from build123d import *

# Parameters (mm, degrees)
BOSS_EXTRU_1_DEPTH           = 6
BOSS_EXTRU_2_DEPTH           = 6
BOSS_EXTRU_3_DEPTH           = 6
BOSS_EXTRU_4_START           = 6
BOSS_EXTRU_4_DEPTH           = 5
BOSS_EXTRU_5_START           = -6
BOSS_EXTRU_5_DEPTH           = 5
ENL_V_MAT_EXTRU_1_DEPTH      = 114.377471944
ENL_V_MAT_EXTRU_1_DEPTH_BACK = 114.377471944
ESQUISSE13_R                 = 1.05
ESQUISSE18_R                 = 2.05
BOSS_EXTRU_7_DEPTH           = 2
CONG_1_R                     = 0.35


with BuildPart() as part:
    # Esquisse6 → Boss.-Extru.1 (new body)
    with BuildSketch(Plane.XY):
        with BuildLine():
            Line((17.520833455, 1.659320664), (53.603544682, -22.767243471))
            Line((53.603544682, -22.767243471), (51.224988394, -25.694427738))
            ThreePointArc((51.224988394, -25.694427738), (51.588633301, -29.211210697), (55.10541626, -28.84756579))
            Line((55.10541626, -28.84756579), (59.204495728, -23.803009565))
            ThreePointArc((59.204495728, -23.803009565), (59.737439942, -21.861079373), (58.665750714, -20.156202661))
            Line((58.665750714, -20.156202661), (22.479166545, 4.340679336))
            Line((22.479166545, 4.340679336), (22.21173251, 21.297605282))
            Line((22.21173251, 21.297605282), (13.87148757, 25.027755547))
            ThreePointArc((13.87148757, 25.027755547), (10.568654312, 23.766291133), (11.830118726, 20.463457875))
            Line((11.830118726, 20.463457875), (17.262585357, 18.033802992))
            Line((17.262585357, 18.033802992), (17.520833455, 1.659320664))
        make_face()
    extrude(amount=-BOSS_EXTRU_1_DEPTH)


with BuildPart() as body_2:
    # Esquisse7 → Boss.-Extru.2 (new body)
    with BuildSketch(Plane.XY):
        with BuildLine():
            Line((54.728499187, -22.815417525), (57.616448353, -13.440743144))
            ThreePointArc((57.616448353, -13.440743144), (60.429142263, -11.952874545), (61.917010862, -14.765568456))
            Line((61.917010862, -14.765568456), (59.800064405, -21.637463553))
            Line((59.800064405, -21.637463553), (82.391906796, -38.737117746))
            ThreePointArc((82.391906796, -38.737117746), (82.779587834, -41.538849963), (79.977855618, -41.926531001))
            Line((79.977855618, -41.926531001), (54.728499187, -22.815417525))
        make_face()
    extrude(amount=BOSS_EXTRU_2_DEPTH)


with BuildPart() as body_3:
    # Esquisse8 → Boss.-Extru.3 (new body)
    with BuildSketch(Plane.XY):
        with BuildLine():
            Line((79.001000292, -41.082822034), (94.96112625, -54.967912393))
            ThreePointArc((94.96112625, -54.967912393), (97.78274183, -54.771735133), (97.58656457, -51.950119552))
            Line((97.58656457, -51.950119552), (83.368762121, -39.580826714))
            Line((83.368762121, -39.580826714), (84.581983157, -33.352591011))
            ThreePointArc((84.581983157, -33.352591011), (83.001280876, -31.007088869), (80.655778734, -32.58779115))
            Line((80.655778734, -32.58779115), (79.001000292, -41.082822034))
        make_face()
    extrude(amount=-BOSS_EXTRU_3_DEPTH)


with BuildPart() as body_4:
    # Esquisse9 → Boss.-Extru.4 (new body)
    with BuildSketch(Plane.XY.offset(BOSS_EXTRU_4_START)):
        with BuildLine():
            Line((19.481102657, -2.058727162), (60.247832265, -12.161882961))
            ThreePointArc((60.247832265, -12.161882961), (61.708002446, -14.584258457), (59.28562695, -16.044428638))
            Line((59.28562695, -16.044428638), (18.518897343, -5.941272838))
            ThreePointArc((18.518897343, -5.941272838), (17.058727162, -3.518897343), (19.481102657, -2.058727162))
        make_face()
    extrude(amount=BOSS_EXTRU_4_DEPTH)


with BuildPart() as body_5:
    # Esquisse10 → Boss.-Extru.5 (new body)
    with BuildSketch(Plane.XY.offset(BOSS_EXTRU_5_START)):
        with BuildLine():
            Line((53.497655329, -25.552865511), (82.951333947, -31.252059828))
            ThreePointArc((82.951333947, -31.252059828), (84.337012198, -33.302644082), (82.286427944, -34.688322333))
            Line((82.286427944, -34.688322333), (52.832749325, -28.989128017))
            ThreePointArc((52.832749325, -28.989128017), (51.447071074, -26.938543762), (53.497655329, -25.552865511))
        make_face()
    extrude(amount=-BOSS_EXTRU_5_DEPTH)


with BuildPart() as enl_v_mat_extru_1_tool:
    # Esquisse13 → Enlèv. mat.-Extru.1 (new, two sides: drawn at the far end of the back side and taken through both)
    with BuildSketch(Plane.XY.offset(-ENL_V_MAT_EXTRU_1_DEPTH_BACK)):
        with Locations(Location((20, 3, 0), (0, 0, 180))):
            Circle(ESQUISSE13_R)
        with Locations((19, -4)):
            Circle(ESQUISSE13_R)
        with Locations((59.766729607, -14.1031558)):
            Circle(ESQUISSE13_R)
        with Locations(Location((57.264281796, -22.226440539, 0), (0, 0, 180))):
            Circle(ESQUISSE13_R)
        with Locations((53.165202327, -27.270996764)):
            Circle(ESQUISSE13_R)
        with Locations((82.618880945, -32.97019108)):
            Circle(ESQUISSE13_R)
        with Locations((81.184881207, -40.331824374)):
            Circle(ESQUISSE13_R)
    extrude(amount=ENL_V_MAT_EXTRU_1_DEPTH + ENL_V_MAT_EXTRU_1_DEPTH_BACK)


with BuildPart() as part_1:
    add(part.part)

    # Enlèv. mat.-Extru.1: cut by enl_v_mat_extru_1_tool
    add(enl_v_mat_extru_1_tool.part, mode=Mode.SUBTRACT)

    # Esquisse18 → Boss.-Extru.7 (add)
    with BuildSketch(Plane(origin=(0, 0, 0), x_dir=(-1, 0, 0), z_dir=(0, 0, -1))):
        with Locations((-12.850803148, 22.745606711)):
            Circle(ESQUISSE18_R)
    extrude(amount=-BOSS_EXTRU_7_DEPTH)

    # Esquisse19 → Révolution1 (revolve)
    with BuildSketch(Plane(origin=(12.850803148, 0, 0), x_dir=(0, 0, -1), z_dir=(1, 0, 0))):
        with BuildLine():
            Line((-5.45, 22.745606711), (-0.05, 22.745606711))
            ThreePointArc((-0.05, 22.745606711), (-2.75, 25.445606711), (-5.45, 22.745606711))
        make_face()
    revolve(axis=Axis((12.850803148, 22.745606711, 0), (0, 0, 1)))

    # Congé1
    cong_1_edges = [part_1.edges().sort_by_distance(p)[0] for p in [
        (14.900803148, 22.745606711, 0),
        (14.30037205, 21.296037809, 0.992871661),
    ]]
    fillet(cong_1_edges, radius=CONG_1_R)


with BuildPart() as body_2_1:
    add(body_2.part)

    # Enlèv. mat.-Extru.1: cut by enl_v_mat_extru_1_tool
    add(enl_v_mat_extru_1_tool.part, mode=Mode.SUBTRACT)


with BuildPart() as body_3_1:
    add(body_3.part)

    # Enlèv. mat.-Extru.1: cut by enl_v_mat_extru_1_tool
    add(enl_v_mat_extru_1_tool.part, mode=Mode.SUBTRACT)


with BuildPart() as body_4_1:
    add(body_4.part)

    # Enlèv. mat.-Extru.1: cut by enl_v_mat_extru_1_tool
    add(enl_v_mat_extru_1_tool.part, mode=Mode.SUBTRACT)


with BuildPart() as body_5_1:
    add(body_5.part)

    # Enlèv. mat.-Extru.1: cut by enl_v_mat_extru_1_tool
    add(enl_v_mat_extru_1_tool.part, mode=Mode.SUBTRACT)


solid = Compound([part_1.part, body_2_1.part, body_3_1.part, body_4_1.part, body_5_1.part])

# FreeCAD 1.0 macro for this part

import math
import FreeCAD as App
import Part
import Sketcher
from FreeCAD import Vector


def edges_at(feature, points):
    """Names of the edges that pass closest to the given points."""
    edges = feature.Shape.Edges
    near = lambda p: min(range(len(edges)), key=lambda i: edges[i].distToShape(Part.Vertex(*p))[0])
    return sorted({f"Edge{near(p) + 1}" for p in points})

doc = App.newDocument("Part")
params = doc.addObject("Spreadsheet::Sheet", "Params")
for row, (alias, value) in enumerate([
    ("sketch1_radius", "2.5 mm"),
    ("sketch1_length", "6.5 mm"),
    ("pad1_length", "6 mm"),
    ("sketch2_radius", "2 mm"),
    ("sketch2_radius2", "2.25 mm"),
    ("pad2_length", "6 mm"),
    ("sketch3_radius", "2 mm"),
    ("pad3_length", "6 mm"),
    ("sketch4_radius", "2 mm"),
    ("sketch4_length", "42 mm"),
    ("pad4_length", "5 mm"),
    ("sketch5_radius", "1.75 mm"),
    ("sketch5_length", "30 mm"),
    ("pad5_length", "5 mm"),
    ("sketch6_diameter", "2.1 mm"),
    ("pad6_length", "114.377472 mm"),
    ("pad6_length2", "114.377472 mm"),
    ("sketch7_diameter", "4.1 mm"),
    ("pad7_length", "2 mm"),
    ("sketch8_radius", "2.7 mm"),
    ("revolution_angle", "360 deg"),
    ("fillet_radius", "0.35 mm"),
], start=1):
    params.set(f"A{row}", alias)
    params.set(f"B{row}", "=" + value)
    params.setAlias(f"B{row}", alias)

body = doc.addObject("PartDesign::Body", "Body")

sketch1 = body.newObject("Sketcher::SketchObject", "Sketch")
sketch1.AttachmentSupport = (doc.getObject("XY_Plane"), [""])
sketch1.MapMode = "FlatFace"
sketch1.addGeometry([
    Part.LineSegment(Vector(17.5, 1.7, 0), Vector(53.6, -22.8, 0)),
    Part.LineSegment(Vector(53.6, -22.8, 0), Vector(51.2, -25.7, 0)),
    Part.ArcOfCircle(Part.Circle(Vector(53.2, -27.3, 0), Vector(0, 0, 1), 2.5), math.radians(141), math.radians(321)),
    Part.LineSegment(Vector(55.1, -28.8, 0), Vector(59.2, -23.8, 0)),
    Part.ArcOfCircle(Part.Circle(Vector(57.3, -22.2, 0), Vector(0, 0, 1), 2.5), math.radians(-39), math.radians(56)),
    Part.LineSegment(Vector(58.7, -20.2, 0), Vector(22.5, 4.3, 0)),
    Part.LineSegment(Vector(22.5, 4.3, 0), Vector(22.2, 21.3, 0)),
    Part.LineSegment(Vector(22.2, 21.3, 0), Vector(13.9, 25, 0)),
    Part.ArcOfCircle(Part.Circle(Vector(12.9, 22.7, 0), Vector(0, 0, 1), 2.5), math.radians(66), math.radians(246)),
    Part.LineSegment(Vector(11.8, 20.5, 0), Vector(17.3, 18, 0)),
    Part.LineSegment(Vector(17.3, 18, 0), Vector(17.5, 1.7, 0)),
], False)
sketch1.addConstraint([
    Sketcher.Constraint("Coincident", 0, 2, 1, 1),
    Sketcher.Constraint("Tangent", 1, 2, 2, 1),
    Sketcher.Constraint("Tangent", 2, 2, 3, 1),
    Sketcher.Constraint("Tangent", 3, 2, 4, 1),
    Sketcher.Constraint("Tangent", 4, 2, 5, 1),
    Sketcher.Constraint("Coincident", 5, 2, 6, 1),
    Sketcher.Constraint("Coincident", 6, 2, 7, 1),
    Sketcher.Constraint("Tangent", 7, 2, 8, 1),
    Sketcher.Constraint("Tangent", 8, 2, 9, 1),
    Sketcher.Constraint("Coincident", 9, 2, 10, 1),
    Sketcher.Constraint("Coincident", 10, 2, 0, 1),
    Sketcher.Constraint("Equal", 2, 4),
    Sketcher.Constraint("Equal", 4, 8),
    Sketcher.Constraint("Parallel", 1, 3),
    Sketcher.Constraint("Parallel", 0, 5),
    Sketcher.Constraint("Parallel", 7, 9),
    Sketcher.Constraint("Parallel", 6, 10),
    Sketcher.Constraint("Radius", 2, 2.5),
    Sketcher.Constraint("Distance", 3, 6.5),
    Sketcher.Constraint("DistanceY", 6, 2, 8, 3, 1.448001),
    Sketcher.Constraint("DistanceY", 0, 2, 7, 2, 47.794999),
    Sketcher.Constraint("DistanceX", 8, 3, 2, 3, 40.314399),
    Sketcher.Constraint("DistanceX", 7, 2, 1, 2, 37.353501),
    Sketcher.Constraint("DistanceY", 0, 2, 8, 2, 43.230701),
    Sketcher.Constraint("DistanceX", 10, 2, 6, 2, 4.690899),
    Sketcher.Constraint("Distance", 1, 3.771729),
    Sketcher.Constraint("Distance", 10, 16.376519),
    Sketcher.Constraint("DistanceX", -1, 1, 4, 3, 57.264282),
    Sketcher.Constraint("DistanceY", 4, 3, -1, 1, 22.226441),
    Sketcher.Constraint("DistanceX", -1, 1, 4, 2, 58.665751),
])
sketch1.setExpression("Constraints[17]", "Params.sketch1_radius")
sketch1.setExpression("Constraints[18]", "Params.sketch1_length")
pad1 = body.newObject("PartDesign::Pad", "Pad")
pad1.Profile = sketch1
pad1.setExpression("Length", "Params.pad1_length")
pad1.Reversed = True
body2 = doc.addObject("PartDesign::Body", "Body001")

sketch2 = body2.newObject("Sketcher::SketchObject", "Sketch001")
sketch2.AttachmentSupport = (doc.getObject("XY_Plane001"), [""])
sketch2.MapMode = "FlatFace"
sketch2.addGeometry([
    Part.LineSegment(Vector(57.6, -13.4, 0), Vector(54.7, -22.8, 0)),
    Part.LineSegment(Vector(54.7, -22.8, 0), Vector(80, -41.9, 0)),
    Part.ArcOfCircle(Part.Circle(Vector(81.2, -40.3, 0), Vector(0, 0, 1), 2), math.radians(-127), math.radians(53)),
    Part.LineSegment(Vector(82.4, -38.7, 0), Vector(59.8, -21.6, 0)),
    Part.LineSegment(Vector(59.8, -21.6, 0), Vector(61.9, -14.8, 0)),
    Part.ArcOfCircle(Part.Circle(Vector(59.8, -14.1, 0), Vector(0, 0, 1), 2.2), math.radians(-17), math.radians(163)),
], False)
sketch2.addConstraint([
    Sketcher.Constraint("Coincident", 0, 2, 1, 1),
    Sketcher.Constraint("Tangent", 1, 2, 2, 1),
    Sketcher.Constraint("Tangent", 2, 2, 3, 1),
    Sketcher.Constraint("Coincident", 3, 2, 4, 1),
    Sketcher.Constraint("Tangent", 4, 2, 5, 1),
    Sketcher.Constraint("Tangent", 5, 2, 0, 1),
    Sketcher.Constraint("Parallel", 1, 3),
    Sketcher.Constraint("Parallel", 0, 4),
    Sketcher.Constraint("Radius", 2, 2.0),
    Sketcher.Constraint("Radius", 5, 2.25),
    Sketcher.Constraint("DistanceX", -1, 1, 0, 2, 54.728499),
    Sketcher.Constraint("DistanceY", 2, 2, 0, 2, 15.9217),
    Sketcher.Constraint("Distance", 1, 31.66646),
    Sketcher.Constraint("Distance", 3, 28.33354),
    Sketcher.Constraint("DistanceX", -1, 1, 5, 3, 59.76673),
    Sketcher.Constraint("DistanceY", 1, 2, -1, 1, 41.926531),
])
sketch2.setExpression("Constraints[8]", "Params.sketch2_radius")
sketch2.setExpression("Constraints[9]", "Params.sketch2_radius2")
pad2 = body2.newObject("PartDesign::Pad", "Pad001")
pad2.Profile = sketch2
pad2.setExpression("Length", "Params.pad2_length")
body3 = doc.addObject("PartDesign::Body", "Body002")

sketch3 = body3.newObject("Sketcher::SketchObject", "Sketch002")
sketch3.AttachmentSupport = (doc.getObject("XY_Plane002"), [""])
sketch3.MapMode = "FlatFace"
sketch3.addGeometry([
    Part.LineSegment(Vector(79, -41.1, 0), Vector(95, -55, 0)),
    Part.ArcOfCircle(Part.Circle(Vector(96.3, -53.5, 0), Vector(0, 0, 1), 2), math.radians(-131), math.radians(49)),
    Part.LineSegment(Vector(97.6, -52, 0), Vector(83.4, -39.6, 0)),
    Part.LineSegment(Vector(83.4, -39.6, 0), Vector(84.6, -33.4, 0)),
    Part.ArcOfCircle(Part.Circle(Vector(82.6, -33, 0), Vector(0, 0, 1), 2), math.radians(-11), math.radians(169)),
    Part.LineSegment(Vector(80.7, -32.6, 0), Vector(79, -41.1, 0)),
], False)
sketch3.addConstraint([
    Sketcher.Constraint("Tangent", 0, 2, 1, 1),
    Sketcher.Constraint("Tangent", 1, 2, 2, 1),
    Sketcher.Constraint("Coincident", 2, 2, 3, 1),
    Sketcher.Constraint("Tangent", 3, 2, 4, 1),
    Sketcher.Constraint("Tangent", 4, 2, 5, 1),
    Sketcher.Constraint("Coincident", 5, 2, 0, 1),
    Sketcher.Constraint("Equal", 1, 4),
    Sketcher.Constraint("Parallel", 0, 2),
    Sketcher.Constraint("Parallel", 3, 5),
    Sketcher.Constraint("Radius", 1, 2.0),
    Sketcher.Constraint("DistanceX", -1, 1, 5, 2, 79.001),
    Sketcher.Constraint("Distance", 0, 21.154701),
    Sketcher.Constraint("Distance", 2, 18.845299),
    Sketcher.Constraint("Distance", 3, 6.345299),
    Sketcher.Constraint("DistanceY", 3, 2, 4, 3, 0.3824),
    Sketcher.Constraint("DistanceY", 4, 3, -1, 1, 32.970191),
])
sketch3.setExpression("Constraints[9]", "Params.sketch3_radius")
pad3 = body3.newObject("PartDesign::Pad", "Pad002")
pad3.Profile = sketch3
pad3.setExpression("Length", "Params.pad3_length")
pad3.Reversed = True
body4 = doc.addObject("PartDesign::Body", "Body003")

sketch4 = body4.newObject("Sketcher::SketchObject", "Sketch003")
sketch4.AttachmentSupport = (doc.getObject("XY_Plane003"), [""])
sketch4.MapMode = "FlatFace"
sketch4.AttachmentOffset = App.Placement(Vector(0, 0, 6), App.Rotation())
sketch4.addGeometry([
    Part.LineSegment(Vector(60.2, -12.2, 0), Vector(19.5, -2.1, 0)),
    Part.ArcOfCircle(Part.Circle(Vector(19, -4, 0), Vector(0, 0, 1), 2), math.radians(76), math.radians(256)),
    Part.LineSegment(Vector(18.5, -5.9, 0), Vector(59.3, -16, 0)),
    Part.ArcOfCircle(Part.Circle(Vector(59.8, -14.1, 0), Vector(0, 0, 1), 2), math.radians(-104), math.radians(76)),
], False)
sketch4.addConstraint([
    Sketcher.Constraint("Tangent", 0, 2, 1, 1),
    Sketcher.Constraint("Tangent", 1, 2, 2, 1),
    Sketcher.Constraint("Tangent", 2, 2, 3, 1),
    Sketcher.Constraint("Tangent", 3, 2, 0, 1),
    Sketcher.Constraint("Equal", 1, 3),
    Sketcher.Constraint("Radius", 1, 2.0),
    Sketcher.Constraint("Distance", 0, 42.0),
    Sketcher.Constraint("DistanceX", -1, 1, 1, 3, 19.0),
    Sketcher.Constraint("DistanceY", 1, 3, -1, 1, 4.0),
    Sketcher.Constraint("DistanceY", 2, 2, 0, 2, 13.985701),
])
sketch4.setExpression("Constraints[5]", "Params.sketch4_radius")
sketch4.setExpression("Constraints[6]", "Params.sketch4_length")
pad4 = body4.newObject("PartDesign::Pad", "Pad003")
pad4.Profile = sketch4
pad4.setExpression("Length", "Params.pad4_length")
body5 = doc.addObject("PartDesign::Body", "Body004")

sketch5 = body5.newObject("Sketcher::SketchObject", "Sketch004")
sketch5.AttachmentSupport = (doc.getObject("XY_Plane004"), [""])
sketch5.MapMode = "FlatFace"
sketch5.AttachmentOffset = App.Placement(Vector(0, 0, -6), App.Rotation())
sketch5.addGeometry([
    Part.LineSegment(Vector(83, -31.3, 0), Vector(53.5, -25.6, 0)),
    Part.ArcOfCircle(Part.Circle(Vector(53.2, -27.3, 0), Vector(0, 0, 1), 1.8), math.radians(79), math.radians(259)),
    Part.LineSegment(Vector(52.8, -29, 0), Vector(82.3, -34.7, 0)),
    Part.ArcOfCircle(Part.Circle(Vector(82.6, -33, 0), Vector(0, 0, 1), 1.8), math.radians(-101), math.radians(79)),
], False)
sketch5.addConstraint([
    Sketcher.Constraint("Tangent", 0, 2, 1, 1),
    Sketcher.Constraint("Tangent", 1, 2, 2, 1),
    Sketcher.Constraint("Tangent", 2, 2, 3, 1),
    Sketcher.Constraint("Tangent", 3, 2, 0, 1),
    Sketcher.Constraint("Equal", 1, 3),
    Sketcher.Constraint("Radius", 1, 1.75),
    Sketcher.Constraint("Distance", 0, 30.0),
    Sketcher.Constraint("DistanceX", -1, 1, 3, 3, 82.618881),
    Sketcher.Constraint("DistanceY", 3, 3, -1, 1, 32.970191),
    Sketcher.Constraint("DistanceX", -1, 1, 1, 2, 52.832749),
])
sketch5.setExpression("Constraints[5]", "Params.sketch5_radius")
sketch5.setExpression("Constraints[6]", "Params.sketch5_length")
pad5 = body5.newObject("PartDesign::Pad", "Pad004")
pad5.Profile = sketch5
pad5.setExpression("Length", "Params.pad5_length")
pad5.Reversed = True
body6 = doc.addObject("PartDesign::Body", "Body005")
body6.AllowCompound = True

sketch6 = body6.newObject("Sketcher::SketchObject", "Sketch005")
sketch6.AttachmentSupport = (doc.getObject("XY_Plane005"), [""])
sketch6.MapMode = "FlatFace"
sketch6.addGeometry([
    Part.Circle(Vector(20, 3, 0), Vector(0, 0, 1), 1.1),
    Part.Circle(Vector(19, -4, 0), Vector(0, 0, 1), 1.1),
    Part.Circle(Vector(59.8, -14.1, 0), Vector(0, 0, 1), 1.1),
    Part.Circle(Vector(57.3, -22.2, 0), Vector(0, 0, 1), 1.1),
    Part.Circle(Vector(53.2, -27.3, 0), Vector(0, 0, 1), 1.1),
    Part.Circle(Vector(82.6, -33, 0), Vector(0, 0, 1), 1.1),
    Part.Circle(Vector(81.2, -40.3, 0), Vector(0, 0, 1), 1.1),
], False)
sketch6.addConstraint([
    Sketcher.Constraint("Equal", 0, 1),
    Sketcher.Constraint("Equal", 1, 2),
    Sketcher.Constraint("Equal", 2, 3),
    Sketcher.Constraint("Equal", 3, 4),
    Sketcher.Constraint("Equal", 4, 5),
    Sketcher.Constraint("Equal", 5, 6),
    Sketcher.Constraint("Diameter", 0, 2.1),
    Sketcher.Constraint("DistanceX", -1, 1, 0, 3, 20.0),
    Sketcher.Constraint("DistanceY", -1, 1, 0, 3, 3.0),
    Sketcher.Constraint("DistanceX", -1, 1, 1, 3, 19.0),
    Sketcher.Constraint("DistanceY", 1, 3, -1, 1, 4.0),
    Sketcher.Constraint("DistanceX", 6, 3, 5, 3, 1.434),
    Sketcher.Constraint("DistanceX", 3, 3, 5, 3, 25.354599),
    Sketcher.Constraint("DistanceX", -1, 1, 2, 3, 59.76673),
    Sketcher.Constraint("DistanceX", -1, 1, 3, 3, 57.264282),
    Sketcher.Constraint("DistanceY", 3, 3, -1, 1, 22.226441),
    Sketcher.Constraint("DistanceY", 5, 3, -1, 1, 32.970191),
    Sketcher.Constraint("DistanceX", 4, 3, 3, 3, 4.099079),
    Sketcher.Constraint("DistanceY", 4, 3, 2, 3, 13.167841),
    Sketcher.Constraint("DistanceY", 6, 3, 2, 3, 26.228669),
    Sketcher.Constraint("DistanceY", 2, 3, -1, 1, 14.103156),
])
sketch6.setExpression("Constraints[6]", "Params.sketch6_diameter")
pad6 = body6.newObject("PartDesign::Pad", "Pad005")
pad6.Profile = sketch6
pad6.Type = "TwoLengths"
pad6.setExpression("Length", "Params.pad6_length")
pad6.setExpression("Length2", "Params.pad6_length2")
doc.recompute()

body7 = doc.addObject("PartDesign::Body", "Body006")
body7.BaseFeature = body6
boolean = body.newObject("PartDesign::Boolean", "Boolean")
boolean.Type = "Cut"
boolean.addObjects([body7])
doc.recompute()

sketch7 = body.newObject("Sketcher::SketchObject", "Sketch006")
sketch7.AttachmentSupport = (doc.getObject("XY_Plane"), [""])
sketch7.MapMode = "FlatFace"
sketch7.addGeometry(Part.Circle(Vector(12.9, 22.7, 0), Vector(0, 0, 1), 2), False)
sketch7.addConstraint([
    Sketcher.Constraint("Diameter", 0, 4.1),
    Sketcher.Constraint("DistanceX", -1, 1, 0, 3, 12.850803),
    Sketcher.Constraint("DistanceY", -1, 1, 0, 3, 22.745607),
])
sketch7.setExpression("Constraints[0]", "Params.sketch7_diameter")
pad7 = body.newObject("PartDesign::Pad", "Pad006")
pad7.Profile = sketch7
pad7.setExpression("Length", "Params.pad7_length")

sketch8 = body.newObject("Sketcher::SketchObject", "Sketch007")
sketch8.AttachmentSupport = (doc.getObject("YZ_Plane"), [""])
sketch8.MapMode = "FlatFace"
sketch8.AttachmentOffset = App.Placement(Vector(0, 0, 12.850803), App.Rotation())
sketch8.addGeometry([
    Part.LineSegment(Vector(22.7, 5.5, 0), Vector(22.7, 0.1, 0)),
    Part.ArcOfCircle(Part.Circle(Vector(22.7, 2.8, 0), Vector(0, 0, 1), 2.7), math.radians(-90), math.radians(90)),
], False)
sketch8.addGeometry(Part.LineSegment(Vector(22.7, 0.1, 0), Vector(22.7, 5.5, 0)), True)
sketch8.addConstraint([
    Sketcher.Constraint("Coincident", 0, 1, 1, 2),
    Sketcher.Constraint("Coincident", 1, 1, 0, 2),
    Sketcher.Constraint("Vertical", 0),
    Sketcher.Constraint("Vertical", 2),
    Sketcher.Constraint("Coincident", 2, 1, 1, 1),
    Sketcher.Constraint("Vertical", 1, 3, 0, 1),
    Sketcher.Constraint("Equal", 0, 2),
    Sketcher.Constraint("Radius", 1, 2.7),
    Sketcher.Constraint("DistanceY", -1, 1, 1, 3, 2.75),
    Sketcher.Constraint("DistanceX", -1, 1, 1, 3, 22.745607),
])
sketch8.setExpression("Constraints[7]", "Params.sketch8_radius")
revolution = body.newObject("PartDesign::Revolution", "Revolution")
revolution.Profile = sketch8
revolution.ReferenceAxis = (sketch8, ["Axis0"])
revolution.setExpression("Angle", "Params.revolution_angle")
doc.recompute()

fillet = body.newObject("PartDesign::Fillet", "Fillet")
fillet.Base = (revolution, edges_at(revolution, [(14.901, 22.746, 0), (14.3, 21.296, 0.993)]))
fillet.setExpression("Radius", "Params.fillet_radius")
doc.recompute()

body8 = doc.addObject("PartDesign::Body", "Body007")
body8.BaseFeature = body6
boolean2 = body2.newObject("PartDesign::Boolean", "Boolean001")
boolean2.Type = "Cut"
boolean2.addObjects([body8])
doc.recompute()

body9 = doc.addObject("PartDesign::Body", "Body008")
body9.BaseFeature = body6
boolean3 = body3.newObject("PartDesign::Boolean", "Boolean002")
boolean3.Type = "Cut"
boolean3.addObjects([body9])
doc.recompute()

body10 = doc.addObject("PartDesign::Body", "Body009")
body10.BaseFeature = body6
boolean4 = body4.newObject("PartDesign::Boolean", "Boolean003")
boolean4.Type = "Cut"
boolean4.addObjects([body10])
doc.recompute()

boolean5 = body5.newObject("PartDesign::Boolean", "Boolean004")
boolean5.Type = "Cut"
boolean5.addObjects([body6])

doc.recompute()
